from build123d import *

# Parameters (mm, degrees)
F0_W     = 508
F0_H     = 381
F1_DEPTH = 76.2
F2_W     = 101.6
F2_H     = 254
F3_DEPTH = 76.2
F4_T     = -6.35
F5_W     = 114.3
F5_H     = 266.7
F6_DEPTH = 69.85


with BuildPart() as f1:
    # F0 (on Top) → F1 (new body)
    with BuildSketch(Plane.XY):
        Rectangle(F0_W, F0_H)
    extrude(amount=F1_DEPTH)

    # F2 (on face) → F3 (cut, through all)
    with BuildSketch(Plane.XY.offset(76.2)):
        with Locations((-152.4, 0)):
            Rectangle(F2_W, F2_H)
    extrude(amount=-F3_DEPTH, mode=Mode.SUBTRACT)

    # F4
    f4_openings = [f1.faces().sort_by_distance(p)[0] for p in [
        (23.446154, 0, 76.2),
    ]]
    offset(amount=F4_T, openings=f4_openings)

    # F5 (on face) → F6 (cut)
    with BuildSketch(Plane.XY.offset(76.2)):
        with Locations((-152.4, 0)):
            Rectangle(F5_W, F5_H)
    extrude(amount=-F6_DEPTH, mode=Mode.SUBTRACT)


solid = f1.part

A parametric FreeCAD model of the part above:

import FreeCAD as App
import Part
import Sketcher

V = App.Vector
Q = App.Units.Quantity


def faces_at(feature, points):
    """Names of the faces that lie closest to the given points."""
    faces = feature.Shape.Faces
    near = lambda p: min(range(len(faces)), key=lambda i: faces[i].distToShape(Part.Vertex(*p))[0])
    return sorted({f"Face{near(p) + 1}" for p in points})

doc = App.newDocument("Part")
body = doc.addObject("PartDesign::Body", "Body")

# Sketch on XY plane
sketch1 = body.newObject("Sketcher::SketchObject", "Sketch")
sketch1.AttachmentSupport = (doc.getObject("XY_Plane"), [""])
sketch1.MapMode = "FlatFace"
sketch1.addGeometry([
    Part.LineSegment(V(-254, 190, 0), V(-254, -190, 0)),
    Part.LineSegment(V(-254, -190, 0), V(254, -190, 0)),
    Part.LineSegment(V(254, -190, 0), V(254, 190, 0)),
    Part.LineSegment(V(254, 190, 0), V(-254, 190, 0)),
], False)
sketch1.addConstraint([
    Sketcher.Constraint("Coincident", 0, 2, 1, 1),
    Sketcher.Constraint("Coincident", 1, 2, 2, 1),
    Sketcher.Constraint("Coincident", 2, 2, 3, 1),
    Sketcher.Constraint("Coincident", 3, 2, 0, 1),
    Sketcher.Constraint("Vertical", 0),
    Sketcher.Constraint("Horizontal", 1),
    Sketcher.Constraint("Vertical", 2),
    Sketcher.Constraint("Horizontal", 3),
    Sketcher.Constraint("Symmetric", 0, 2, 2, 2, -1, 1),
    Sketcher.Constraint("DistanceX", 1, 1, 1, 2, Q("20 in")),
    Sketcher.Constraint("DistanceY", 0, 2, 0, 1, Q("15 in")),
])
pad1 = body.newObject("PartDesign::Pad", "Pad")
pad1.Profile = sketch1
pad1.Length = Q("3 in")

# Sketch on XY plane
sketch2 = body.newObject("Sketcher::SketchObject", "Sketch001")
sketch2.AttachmentSupport = (doc.getObject("XY_Plane"), [""])
sketch2.MapMode = "FlatFace"
sketch2.AttachmentOffset = App.Placement(V(0, 0, 3 * 25.4), App.Rotation())
sketch2.addGeometry([
    Part.LineSegment(V(-203, 127, 0), V(-203, -127, 0)),
    Part.LineSegment(V(-203, -127, 0), V(-102, -127, 0)),
    Part.LineSegment(V(-102, -127, 0), V(-102, 127, 0)),
    Part.LineSegment(V(-102, 127, 0), V(-203, 127, 0)),
], False)
sketch2.addConstraint([
    Sketcher.Constraint("Coincident", 0, 2, 1, 1),
    Sketcher.Constraint("Coincident", 1, 2, 2, 1),
    Sketcher.Constraint("Coincident", 2, 2, 3, 1),
    Sketcher.Constraint("Coincident", 3, 2, 0, 1),
    Sketcher.Constraint("Vertical", 0),
    Sketcher.Constraint("Horizontal", 1),
    Sketcher.Constraint("Vertical", 2),
    Sketcher.Constraint("Horizontal", 3),
    Sketcher.Constraint("DistanceX", 1, 1, 1, 2, Q("4 in")),
    Sketcher.Constraint("DistanceY", 0, 2, 0, 1, Q("10 in")),
    Sketcher.Constraint("DistanceX", 0, 2, -1, 1, Q("8 in")),
    Sketcher.Constraint("DistanceY", 0, 2, -1, 1, Q("5 in")),
])
pocket1 = body.newObject("PartDesign::Pocket", "Pocket")
pocket1.Profile = sketch2
pocket1.Type = "ThroughAll"
doc.recompute()

thickness = body.newObject("PartDesign::Thickness", "Thickness")
thickness.Base = (pocket1, faces_at(pocket1, [(0, 0, 76.2)]))
thickness.Value = Q("0.25 in")
thickness.Reversed = True
thickness.Join = "Arc"

# Sketch on XY plane
sketch3 = body.newObject("Sketcher::SketchObject", "Sketch002")
sketch3.AttachmentSupport = (doc.getObject("XY_Plane"), [""])
sketch3.MapMode = "FlatFace"
sketch3.AttachmentOffset = App.Placement(V(0, 0, 3 * 25.4), App.Rotation())
sketch3.addGeometry([
    Part.LineSegment(V(-210, 133, 0), V(-210, -133, 0)),
    Part.LineSegment(V(-210, -133, 0), V(-95, -133, 0)),
    Part.LineSegment(V(-95, -133, 0), V(-95, 133, 0)),
    Part.LineSegment(V(-95, 133, 0), V(-210, 133, 0)),
], False)
sketch3.addConstraint([
    Sketcher.Constraint("Coincident", 0, 2, 1, 1),
    Sketcher.Constraint("Coincident", 1, 2, 2, 1),
    Sketcher.Constraint("Coincident", 2, 2, 3, 1),
    Sketcher.Constraint("Coincident", 3, 2, 0, 1),
    Sketcher.Constraint("Vertical", 0),
    Sketcher.Constraint("Horizontal", 1),
    Sketcher.Constraint("Vertical", 2),
    Sketcher.Constraint("Horizontal", 3),
    Sketcher.Constraint("DistanceX", 1, 1, 1, 2, Q("4.5 in")),
    Sketcher.Constraint("DistanceY", 0, 2, 0, 1, Q("10.5 in")),
    Sketcher.Constraint("DistanceX", 0, 2, -1, 1, Q("8.25 in")),
    Sketcher.Constraint("DistanceY", 0, 2, -1, 1, Q("5.25 in")),
])
pocket2 = body.newObject("PartDesign::Pocket", "Pocket001")
pocket2.Profile = sketch3
pocket2.Length = Q("2.75 in")

doc.recompute()
